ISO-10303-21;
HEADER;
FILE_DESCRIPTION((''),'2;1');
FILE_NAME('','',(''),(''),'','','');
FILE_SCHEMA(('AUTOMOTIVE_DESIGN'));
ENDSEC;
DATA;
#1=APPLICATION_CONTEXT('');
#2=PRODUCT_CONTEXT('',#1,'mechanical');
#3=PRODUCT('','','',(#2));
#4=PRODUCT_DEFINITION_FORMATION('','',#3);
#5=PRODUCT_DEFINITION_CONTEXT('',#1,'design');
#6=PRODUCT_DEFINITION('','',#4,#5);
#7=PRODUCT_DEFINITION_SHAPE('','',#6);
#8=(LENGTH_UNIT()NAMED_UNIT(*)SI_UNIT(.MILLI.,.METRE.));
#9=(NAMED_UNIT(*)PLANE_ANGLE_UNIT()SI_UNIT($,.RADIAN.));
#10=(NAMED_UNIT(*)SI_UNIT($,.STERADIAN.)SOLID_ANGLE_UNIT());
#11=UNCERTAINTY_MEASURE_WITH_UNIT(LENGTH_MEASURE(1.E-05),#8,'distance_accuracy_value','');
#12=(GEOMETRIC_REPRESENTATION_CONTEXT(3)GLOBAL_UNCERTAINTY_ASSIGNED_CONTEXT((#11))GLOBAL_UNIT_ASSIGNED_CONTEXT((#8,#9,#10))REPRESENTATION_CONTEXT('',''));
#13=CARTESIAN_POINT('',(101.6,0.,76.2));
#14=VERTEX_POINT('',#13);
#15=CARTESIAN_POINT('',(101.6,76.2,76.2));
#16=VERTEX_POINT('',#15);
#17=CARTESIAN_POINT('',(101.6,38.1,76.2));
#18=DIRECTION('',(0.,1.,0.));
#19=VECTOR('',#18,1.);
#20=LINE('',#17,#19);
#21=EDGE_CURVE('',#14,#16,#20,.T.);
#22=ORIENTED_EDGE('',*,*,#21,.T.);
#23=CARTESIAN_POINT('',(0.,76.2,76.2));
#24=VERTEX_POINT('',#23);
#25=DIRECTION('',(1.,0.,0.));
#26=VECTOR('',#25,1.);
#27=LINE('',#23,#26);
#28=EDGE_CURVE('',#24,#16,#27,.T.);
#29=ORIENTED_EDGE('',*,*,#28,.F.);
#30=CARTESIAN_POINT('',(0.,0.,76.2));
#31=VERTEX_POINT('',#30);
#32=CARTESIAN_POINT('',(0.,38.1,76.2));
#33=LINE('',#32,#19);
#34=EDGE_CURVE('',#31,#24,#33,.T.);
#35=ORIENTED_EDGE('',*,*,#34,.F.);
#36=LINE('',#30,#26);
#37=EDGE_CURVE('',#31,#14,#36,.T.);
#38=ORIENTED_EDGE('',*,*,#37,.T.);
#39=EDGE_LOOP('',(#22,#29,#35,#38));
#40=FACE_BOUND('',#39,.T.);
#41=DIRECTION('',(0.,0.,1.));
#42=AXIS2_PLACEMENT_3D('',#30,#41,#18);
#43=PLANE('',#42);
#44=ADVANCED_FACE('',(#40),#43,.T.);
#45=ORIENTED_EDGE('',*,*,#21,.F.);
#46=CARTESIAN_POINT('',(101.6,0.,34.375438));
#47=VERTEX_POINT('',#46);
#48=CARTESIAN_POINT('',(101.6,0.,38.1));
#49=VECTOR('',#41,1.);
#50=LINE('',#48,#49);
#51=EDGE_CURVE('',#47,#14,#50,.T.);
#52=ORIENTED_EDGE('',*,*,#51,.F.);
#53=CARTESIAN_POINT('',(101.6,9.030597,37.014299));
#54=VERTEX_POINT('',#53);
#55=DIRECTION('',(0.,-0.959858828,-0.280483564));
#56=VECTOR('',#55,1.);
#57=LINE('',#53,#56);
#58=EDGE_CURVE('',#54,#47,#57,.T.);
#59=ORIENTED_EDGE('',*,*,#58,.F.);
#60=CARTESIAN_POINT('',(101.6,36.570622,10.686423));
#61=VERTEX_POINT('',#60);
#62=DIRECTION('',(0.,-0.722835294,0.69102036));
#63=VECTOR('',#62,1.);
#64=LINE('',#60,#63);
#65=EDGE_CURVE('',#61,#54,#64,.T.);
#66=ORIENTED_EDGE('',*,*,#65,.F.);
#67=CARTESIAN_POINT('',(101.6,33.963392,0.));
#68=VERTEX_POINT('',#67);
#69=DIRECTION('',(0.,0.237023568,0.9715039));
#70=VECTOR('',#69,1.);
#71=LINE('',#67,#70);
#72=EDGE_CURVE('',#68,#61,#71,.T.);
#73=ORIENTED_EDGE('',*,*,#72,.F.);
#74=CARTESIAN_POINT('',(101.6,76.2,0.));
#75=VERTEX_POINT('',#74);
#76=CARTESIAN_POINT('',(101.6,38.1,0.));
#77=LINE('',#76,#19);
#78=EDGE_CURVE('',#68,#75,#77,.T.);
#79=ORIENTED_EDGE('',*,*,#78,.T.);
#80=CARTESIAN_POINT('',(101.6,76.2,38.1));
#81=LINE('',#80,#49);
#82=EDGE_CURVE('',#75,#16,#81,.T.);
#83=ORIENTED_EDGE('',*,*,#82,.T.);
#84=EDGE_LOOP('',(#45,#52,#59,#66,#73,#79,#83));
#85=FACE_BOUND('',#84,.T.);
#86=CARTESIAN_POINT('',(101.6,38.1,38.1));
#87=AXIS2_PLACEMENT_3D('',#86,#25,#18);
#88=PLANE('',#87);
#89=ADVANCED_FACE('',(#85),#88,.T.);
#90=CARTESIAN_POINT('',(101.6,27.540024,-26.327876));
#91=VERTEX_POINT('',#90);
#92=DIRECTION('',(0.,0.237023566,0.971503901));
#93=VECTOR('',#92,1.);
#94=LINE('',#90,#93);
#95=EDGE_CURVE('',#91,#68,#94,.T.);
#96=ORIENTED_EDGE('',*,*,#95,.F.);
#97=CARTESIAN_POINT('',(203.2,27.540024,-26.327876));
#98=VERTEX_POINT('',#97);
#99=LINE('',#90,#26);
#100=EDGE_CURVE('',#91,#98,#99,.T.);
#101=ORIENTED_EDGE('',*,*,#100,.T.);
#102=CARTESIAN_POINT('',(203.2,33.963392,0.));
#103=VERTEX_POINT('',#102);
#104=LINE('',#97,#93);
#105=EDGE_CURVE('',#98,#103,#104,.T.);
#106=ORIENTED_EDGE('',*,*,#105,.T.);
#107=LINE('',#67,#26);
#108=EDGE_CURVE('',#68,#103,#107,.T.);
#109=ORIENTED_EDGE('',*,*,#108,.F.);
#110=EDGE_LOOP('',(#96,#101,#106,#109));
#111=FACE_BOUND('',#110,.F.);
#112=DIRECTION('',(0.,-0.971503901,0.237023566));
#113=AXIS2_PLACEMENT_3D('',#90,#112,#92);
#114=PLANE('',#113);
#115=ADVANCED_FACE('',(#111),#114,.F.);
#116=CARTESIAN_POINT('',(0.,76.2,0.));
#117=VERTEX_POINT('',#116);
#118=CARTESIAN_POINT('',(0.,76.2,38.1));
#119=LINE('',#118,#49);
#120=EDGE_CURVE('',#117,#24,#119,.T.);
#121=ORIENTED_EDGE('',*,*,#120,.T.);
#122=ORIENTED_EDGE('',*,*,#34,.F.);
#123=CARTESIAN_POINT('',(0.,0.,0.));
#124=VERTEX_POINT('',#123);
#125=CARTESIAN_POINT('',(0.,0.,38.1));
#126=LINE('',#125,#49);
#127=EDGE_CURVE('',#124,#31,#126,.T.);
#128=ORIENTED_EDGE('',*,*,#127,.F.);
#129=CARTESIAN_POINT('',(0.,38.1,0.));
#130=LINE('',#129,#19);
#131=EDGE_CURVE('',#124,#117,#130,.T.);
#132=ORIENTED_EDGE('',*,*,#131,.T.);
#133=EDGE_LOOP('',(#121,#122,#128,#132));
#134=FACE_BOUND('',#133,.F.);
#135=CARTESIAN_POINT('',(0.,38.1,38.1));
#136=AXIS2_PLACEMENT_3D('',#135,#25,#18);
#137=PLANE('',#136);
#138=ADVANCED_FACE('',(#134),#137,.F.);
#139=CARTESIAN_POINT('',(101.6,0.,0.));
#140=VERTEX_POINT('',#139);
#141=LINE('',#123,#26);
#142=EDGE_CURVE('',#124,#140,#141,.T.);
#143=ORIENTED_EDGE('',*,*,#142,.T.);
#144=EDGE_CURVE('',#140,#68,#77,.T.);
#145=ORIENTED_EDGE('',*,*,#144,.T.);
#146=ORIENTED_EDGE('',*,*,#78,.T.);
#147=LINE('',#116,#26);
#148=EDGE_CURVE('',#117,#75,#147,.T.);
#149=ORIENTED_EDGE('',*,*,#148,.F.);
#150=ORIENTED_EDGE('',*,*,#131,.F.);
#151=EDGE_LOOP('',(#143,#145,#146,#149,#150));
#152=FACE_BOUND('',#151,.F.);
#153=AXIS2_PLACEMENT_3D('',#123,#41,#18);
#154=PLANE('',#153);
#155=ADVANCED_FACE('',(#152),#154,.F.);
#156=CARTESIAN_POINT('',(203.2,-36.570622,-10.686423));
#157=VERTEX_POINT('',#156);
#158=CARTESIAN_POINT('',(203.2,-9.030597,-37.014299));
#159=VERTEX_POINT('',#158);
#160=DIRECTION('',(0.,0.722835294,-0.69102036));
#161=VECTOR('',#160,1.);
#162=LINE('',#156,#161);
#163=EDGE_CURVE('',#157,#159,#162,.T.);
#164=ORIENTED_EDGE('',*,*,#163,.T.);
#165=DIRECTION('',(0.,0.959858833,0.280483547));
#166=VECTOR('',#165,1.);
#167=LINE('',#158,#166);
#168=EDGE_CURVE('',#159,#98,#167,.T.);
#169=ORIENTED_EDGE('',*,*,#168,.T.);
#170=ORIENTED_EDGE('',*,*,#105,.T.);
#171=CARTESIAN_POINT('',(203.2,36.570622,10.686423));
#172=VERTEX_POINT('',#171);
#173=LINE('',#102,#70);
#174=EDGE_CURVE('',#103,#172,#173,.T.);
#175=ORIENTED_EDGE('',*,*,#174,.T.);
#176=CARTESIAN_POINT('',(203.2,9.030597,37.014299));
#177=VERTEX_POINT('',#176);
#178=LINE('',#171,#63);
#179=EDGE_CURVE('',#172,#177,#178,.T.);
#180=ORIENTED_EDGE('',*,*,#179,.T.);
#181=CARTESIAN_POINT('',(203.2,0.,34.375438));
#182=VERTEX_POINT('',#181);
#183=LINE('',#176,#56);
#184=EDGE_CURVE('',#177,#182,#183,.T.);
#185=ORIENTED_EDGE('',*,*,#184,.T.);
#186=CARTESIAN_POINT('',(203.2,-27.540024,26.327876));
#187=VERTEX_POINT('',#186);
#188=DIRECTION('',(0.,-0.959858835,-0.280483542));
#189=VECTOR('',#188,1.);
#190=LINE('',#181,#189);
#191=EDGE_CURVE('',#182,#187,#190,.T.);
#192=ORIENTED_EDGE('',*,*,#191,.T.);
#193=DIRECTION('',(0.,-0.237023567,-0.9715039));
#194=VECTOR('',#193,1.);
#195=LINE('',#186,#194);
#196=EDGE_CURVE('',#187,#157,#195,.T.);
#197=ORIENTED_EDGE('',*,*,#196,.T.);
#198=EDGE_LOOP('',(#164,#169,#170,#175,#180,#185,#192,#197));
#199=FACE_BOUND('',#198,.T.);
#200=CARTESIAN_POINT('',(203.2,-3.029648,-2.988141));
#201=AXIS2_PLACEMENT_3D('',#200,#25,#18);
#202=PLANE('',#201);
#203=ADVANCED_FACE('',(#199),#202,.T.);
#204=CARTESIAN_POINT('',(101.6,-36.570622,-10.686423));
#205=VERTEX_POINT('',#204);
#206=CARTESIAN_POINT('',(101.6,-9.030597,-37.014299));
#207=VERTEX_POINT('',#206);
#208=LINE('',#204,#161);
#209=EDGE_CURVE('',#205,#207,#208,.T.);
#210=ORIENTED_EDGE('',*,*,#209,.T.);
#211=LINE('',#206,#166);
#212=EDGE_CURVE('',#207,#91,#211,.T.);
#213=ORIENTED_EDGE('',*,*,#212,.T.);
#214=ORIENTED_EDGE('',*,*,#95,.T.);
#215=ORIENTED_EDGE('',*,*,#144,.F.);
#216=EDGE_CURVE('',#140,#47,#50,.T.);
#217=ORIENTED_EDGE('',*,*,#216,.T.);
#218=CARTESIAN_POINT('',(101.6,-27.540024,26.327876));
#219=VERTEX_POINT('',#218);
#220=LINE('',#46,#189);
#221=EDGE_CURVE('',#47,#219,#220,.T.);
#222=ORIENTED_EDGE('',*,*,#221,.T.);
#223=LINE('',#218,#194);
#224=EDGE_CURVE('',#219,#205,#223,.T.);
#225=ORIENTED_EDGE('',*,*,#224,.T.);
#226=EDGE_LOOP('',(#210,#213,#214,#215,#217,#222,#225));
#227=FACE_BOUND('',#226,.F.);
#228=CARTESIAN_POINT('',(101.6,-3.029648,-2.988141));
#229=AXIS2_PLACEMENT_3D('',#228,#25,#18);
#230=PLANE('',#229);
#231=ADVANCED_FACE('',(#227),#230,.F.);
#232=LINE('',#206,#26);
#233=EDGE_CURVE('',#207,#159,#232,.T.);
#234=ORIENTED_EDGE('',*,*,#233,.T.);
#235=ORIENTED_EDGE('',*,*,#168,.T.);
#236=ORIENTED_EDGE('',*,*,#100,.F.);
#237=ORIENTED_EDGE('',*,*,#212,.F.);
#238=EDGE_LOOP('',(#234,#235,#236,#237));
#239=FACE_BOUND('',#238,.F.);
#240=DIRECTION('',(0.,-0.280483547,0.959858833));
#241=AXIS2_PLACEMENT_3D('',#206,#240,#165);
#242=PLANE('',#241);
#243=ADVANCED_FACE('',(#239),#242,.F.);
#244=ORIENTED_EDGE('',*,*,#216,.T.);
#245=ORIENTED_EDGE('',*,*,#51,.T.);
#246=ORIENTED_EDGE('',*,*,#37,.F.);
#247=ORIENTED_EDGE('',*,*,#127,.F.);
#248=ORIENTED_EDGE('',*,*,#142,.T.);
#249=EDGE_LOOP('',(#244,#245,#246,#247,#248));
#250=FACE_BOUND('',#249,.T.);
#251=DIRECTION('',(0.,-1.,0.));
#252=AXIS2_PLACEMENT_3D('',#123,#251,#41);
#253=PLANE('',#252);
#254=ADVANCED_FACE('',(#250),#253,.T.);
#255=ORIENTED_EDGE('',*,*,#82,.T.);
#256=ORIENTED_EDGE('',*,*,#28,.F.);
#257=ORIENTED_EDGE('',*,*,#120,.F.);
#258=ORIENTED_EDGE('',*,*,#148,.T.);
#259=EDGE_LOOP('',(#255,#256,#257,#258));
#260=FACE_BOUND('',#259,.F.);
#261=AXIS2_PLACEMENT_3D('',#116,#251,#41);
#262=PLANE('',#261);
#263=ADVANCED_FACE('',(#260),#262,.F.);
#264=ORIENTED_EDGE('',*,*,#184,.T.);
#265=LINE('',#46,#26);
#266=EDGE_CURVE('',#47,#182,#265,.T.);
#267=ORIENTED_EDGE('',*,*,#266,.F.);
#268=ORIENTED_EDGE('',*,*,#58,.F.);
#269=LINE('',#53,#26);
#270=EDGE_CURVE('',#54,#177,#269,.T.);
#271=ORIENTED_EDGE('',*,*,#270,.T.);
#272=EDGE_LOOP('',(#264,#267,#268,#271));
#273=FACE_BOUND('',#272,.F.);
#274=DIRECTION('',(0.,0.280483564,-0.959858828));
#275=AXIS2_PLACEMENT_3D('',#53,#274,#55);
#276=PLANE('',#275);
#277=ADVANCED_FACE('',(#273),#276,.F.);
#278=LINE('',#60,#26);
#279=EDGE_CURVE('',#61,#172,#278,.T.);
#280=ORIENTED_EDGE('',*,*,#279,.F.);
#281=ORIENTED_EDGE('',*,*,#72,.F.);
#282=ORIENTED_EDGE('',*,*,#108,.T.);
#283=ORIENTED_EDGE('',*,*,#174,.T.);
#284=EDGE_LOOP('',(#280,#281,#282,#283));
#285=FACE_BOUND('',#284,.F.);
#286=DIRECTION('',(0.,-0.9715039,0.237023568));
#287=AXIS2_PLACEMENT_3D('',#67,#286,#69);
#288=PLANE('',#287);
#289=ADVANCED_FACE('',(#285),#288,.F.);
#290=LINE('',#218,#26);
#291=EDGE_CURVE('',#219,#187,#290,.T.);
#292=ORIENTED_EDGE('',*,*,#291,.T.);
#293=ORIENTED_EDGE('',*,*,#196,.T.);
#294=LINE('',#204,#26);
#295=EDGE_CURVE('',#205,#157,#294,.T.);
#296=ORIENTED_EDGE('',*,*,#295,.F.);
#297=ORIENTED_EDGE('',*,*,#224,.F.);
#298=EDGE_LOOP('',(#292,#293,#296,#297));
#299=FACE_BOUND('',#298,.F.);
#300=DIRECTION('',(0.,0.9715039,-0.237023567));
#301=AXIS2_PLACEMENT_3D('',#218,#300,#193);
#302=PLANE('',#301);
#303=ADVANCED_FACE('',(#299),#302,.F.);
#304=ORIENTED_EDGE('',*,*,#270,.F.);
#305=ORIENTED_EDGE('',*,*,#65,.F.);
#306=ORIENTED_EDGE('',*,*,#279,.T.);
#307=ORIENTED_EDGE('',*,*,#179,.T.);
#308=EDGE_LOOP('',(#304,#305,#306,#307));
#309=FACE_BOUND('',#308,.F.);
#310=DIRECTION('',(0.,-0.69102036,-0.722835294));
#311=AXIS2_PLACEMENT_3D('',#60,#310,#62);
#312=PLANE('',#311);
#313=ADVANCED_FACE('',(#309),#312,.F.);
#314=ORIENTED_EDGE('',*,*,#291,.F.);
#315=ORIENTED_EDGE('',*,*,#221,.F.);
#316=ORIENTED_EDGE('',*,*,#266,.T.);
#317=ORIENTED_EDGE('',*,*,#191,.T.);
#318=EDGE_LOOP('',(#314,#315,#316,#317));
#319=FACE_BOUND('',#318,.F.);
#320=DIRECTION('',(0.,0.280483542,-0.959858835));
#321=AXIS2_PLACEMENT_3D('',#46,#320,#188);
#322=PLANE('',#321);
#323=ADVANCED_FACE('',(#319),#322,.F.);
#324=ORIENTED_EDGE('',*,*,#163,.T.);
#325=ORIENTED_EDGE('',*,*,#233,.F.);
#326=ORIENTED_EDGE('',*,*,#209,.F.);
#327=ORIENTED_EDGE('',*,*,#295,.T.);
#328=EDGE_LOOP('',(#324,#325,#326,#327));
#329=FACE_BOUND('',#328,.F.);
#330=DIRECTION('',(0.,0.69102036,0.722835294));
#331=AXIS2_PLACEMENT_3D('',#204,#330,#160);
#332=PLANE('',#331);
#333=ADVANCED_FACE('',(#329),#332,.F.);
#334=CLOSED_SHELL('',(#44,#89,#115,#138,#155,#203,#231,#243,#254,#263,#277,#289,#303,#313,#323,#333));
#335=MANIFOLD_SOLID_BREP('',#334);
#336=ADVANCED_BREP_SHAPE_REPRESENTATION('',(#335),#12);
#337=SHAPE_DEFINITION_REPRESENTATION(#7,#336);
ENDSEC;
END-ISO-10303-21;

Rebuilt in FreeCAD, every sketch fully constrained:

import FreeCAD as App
import Part
import Sketcher
Q = App.Units.Quantity

doc = App.newDocument("Part")
body = doc.addObject("PartDesign::Body", "Body")

sketch1 = body.newObject("Sketcher::SketchObject", "Sketch")
sketch1.AttachmentSupport = (doc.getObject("YZ_Plane"), [""])
sketch1.MapMode = "FlatFace"
sketch1.addGeometry([
    Part.LineSegment(App.Vector(0, 76, 0), App.Vector(0, 0, 0)),
    Part.LineSegment(App.Vector(0, 0, 0), App.Vector(76, 0, 0)),
    Part.LineSegment(App.Vector(76, 0, 0), App.Vector(76, 76, 0)),
    Part.LineSegment(App.Vector(76, 76, 0), App.Vector(0, 76, 0)),
], False)
sketch1.addConstraint([
    Sketcher.Constraint("Coincident", 0, 2, 1, 1),
    Sketcher.Constraint("Coincident", 1, 2, 2, 1),
    Sketcher.Constraint("Coincident", 2, 2, 3, 1),
    Sketcher.Constraint("Coincident", 3, 2, 0, 1),
    Sketcher.Constraint("Vertical", 0),
    Sketcher.Constraint("Horizontal", 1),
    Sketcher.Constraint("Vertical", 2),
    Sketcher.Constraint("Horizontal", 3),
    Sketcher.Constraint("Coincident", 0, 2, -1, 1),
    Sketcher.Constraint("Equal", 3, 0),
    Sketcher.Constraint("DistanceX", 1, 1, 1, 2, Q("3 in")),
])
pad1 = body.newObject("PartDesign::Pad", "Pad")
pad1.Profile = sketch1
pad1.Length = Q("4 in")

sketch2 = body.newObject("Sketcher::SketchObject", "Sketch001")
sketch2.AttachmentSupport = (doc.getObject("YZ_Plane"), [""])
sketch2.MapMode = "FlatFace"
sketch2.AttachmentOffset = App.Placement(App.Vector(0, 0, 4 * 25.4), App.Rotation())
sketch2.addGeometry([
    Part.LineSegment(App.Vector(-28, 26, 0), App.Vector(-37, -11, 0)),
    Part.LineSegment(App.Vector(-37, -11, 0), App.Vector(-9, -37, 0)),
    Part.LineSegment(App.Vector(-9, -37, 0), App.Vector(28, -26, 0)),
    Part.LineSegment(App.Vector(28, -26, 0), App.Vector(34, 0, 0)),
    Part.LineSegment(App.Vector(34, 0, 0), App.Vector(37, 11, 0)),
    Part.LineSegment(App.Vector(37, 11, 0), App.Vector(9, 37, 0)),
    Part.LineSegment(App.Vector(9, 37, 0), App.Vector(0, 34, 0)),
    Part.LineSegment(App.Vector(0, 34, 0), App.Vector(-28, 26, 0)),
], False)
sketch2.addConstraint([
    Sketcher.Constraint("Coincident", 0, 2, 1, 1),
    Sketcher.Constraint("Coincident", 1, 2, 2, 1),
    Sketcher.Constraint("Coincident", 2, 2, 3, 1),
    Sketcher.Constraint("Coincident", 3, 2, 4, 1),
    Sketcher.Constraint("Coincident", 4, 2, 5, 1),
    Sketcher.Constraint("Coincident", 5, 2, 6, 1),
    Sketcher.Constraint("Coincident", 6, 2, 7, 1),
    Sketcher.Constraint("Coincident", 7, 2, 0, 1),
    Sketcher.Constraint("Symmetric", 0, 2, 4, 2, -1, 1),
    Sketcher.Constraint("Symmetric", 1, 2, 5, 2, -1, 1),
    Sketcher.Constraint("Symmetric", 2, 2, 7, 2, -1, 1),
    Sketcher.Constraint("PointOnObject", 3, 2, -1),
    Sketcher.Constraint("PointOnObject", 6, 2, -2),
    Sketcher.Constraint("Parallel", 0, 3),
    Sketcher.Constraint("Parallel", 2, 6),
    Sketcher.Constraint("Equal", 0, 1),
    Sketcher.Constraint("Equal", 1, 2),
    Sketcher.Constraint("Distance", 0, Q("1.5 in")),
    Sketcher.Constraint("DistanceY", 1, 2, -1, 1, 37.014299),
    Sketcher.Constraint("DistanceX", 2, 2, 4, 2, 9.030598),
    Sketcher.Constraint("DistanceY", -1, 1, 6, 2, 34.375438),
])
pad2 = body.newObject("PartDesign::Pad", "Pad001")
pad2.Profile = sketch2
pad2.Length = Q("4 in")

doc.recompute()
